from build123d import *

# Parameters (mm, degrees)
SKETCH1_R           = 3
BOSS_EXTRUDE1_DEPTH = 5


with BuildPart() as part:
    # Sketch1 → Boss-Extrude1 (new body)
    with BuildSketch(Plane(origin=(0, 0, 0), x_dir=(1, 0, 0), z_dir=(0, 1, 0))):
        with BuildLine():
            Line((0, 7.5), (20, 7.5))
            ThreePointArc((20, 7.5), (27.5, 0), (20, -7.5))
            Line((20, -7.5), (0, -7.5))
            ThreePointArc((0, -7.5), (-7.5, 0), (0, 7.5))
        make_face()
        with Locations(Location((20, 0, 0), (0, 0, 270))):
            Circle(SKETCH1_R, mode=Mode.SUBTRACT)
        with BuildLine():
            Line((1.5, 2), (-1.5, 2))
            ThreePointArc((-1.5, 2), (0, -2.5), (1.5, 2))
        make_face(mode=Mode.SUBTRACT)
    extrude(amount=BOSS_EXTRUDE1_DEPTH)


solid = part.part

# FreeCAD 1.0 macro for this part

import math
import FreeCAD as App
import Part
import Sketcher

doc = App.newDocument("Part")
body = doc.addObject("PartDesign::Body", "Body")

# Sketch on XZ plane
sketch1 = body.newObject("Sketcher::SketchObject", "Sketch")
sketch1.AttachmentSupport = (doc.getObject("XZ_Plane"), [""])
sketch1.MapMode = "FlatFace"
sketch1.addGeometry([
    Part.LineSegment(App.Vector(20, -7.5, 0), App.Vector(0, -7.5, 0)),  # 0
    Part.ArcOfCircle(Part.Circle(App.Vector(0, 0, 0), App.Vector(0, 0, 1), 7.5), math.radians(90), math.radians(270)),  # 1
    Part.LineSegment(App.Vector(0, 7.5, 0), App.Vector(20, 7.5, 0)),  # 2
    Part.ArcOfCircle(Part.Circle(App.Vector(20, 0, 0), App.Vector(0, 0, 1), 7.5), math.radians(-90), math.radians(90)),  # 3
    Part.ArcOfCircle(Part.Circle(App.Vector(0, 0, 0), App.Vector(0, 0, 1), 2.5), math.radians(-53), math.radians(233)),  # 4
    Part.LineSegment(App.Vector(-1.5, -2, 0), App.Vector(1.5, -2, 0)),  # 5
    Part.Circle(App.Vector(20, 0, 0), App.Vector(0, 0, 1), 3),  # 6
], False)
sketch1.addConstraint([
    Sketcher.Constraint("Tangent", 0, 2, 1, 2),
    Sketcher.Constraint("Tangent", 1, 1, 2, 1),
    Sketcher.Constraint("Tangent", 2, 2, 3, 2),
    Sketcher.Constraint("Tangent", 3, 1, 0, 1),
    Sketcher.Constraint("Coincident", 4, 1, 5, 2),
    Sketcher.Constraint("Coincident", 5, 1, 4, 2),
    Sketcher.Constraint("Horizontal", 0),
    Sketcher.Constraint("Horizontal", 2),
    Sketcher.Constraint("Horizontal", 5),
    Sketcher.Constraint("Coincident", 1, 3, -1, 1),
    Sketcher.Constraint("Coincident", 4, 3, -1, 1),
    Sketcher.Constraint("Coincident", 6, 3, 3, 3),
    Sketcher.Constraint("Diameter", 6, 6.0),
    Sketcher.Constraint("Radius", 1, 7.5),
    Sketcher.Constraint("Radius", 4, 2.5),
    Sketcher.Constraint("DistanceX", 0, 2, 0, 1, 20.0),
    Sketcher.Constraint("DistanceX", 5, 1, 5, 2, 3.0),
])
pad1 = body.newObject("PartDesign::Pad", "Pad")
pad1.Profile = sketch1
pad1.Length = 5
pad1.Reversed = True

doc.recompute()
